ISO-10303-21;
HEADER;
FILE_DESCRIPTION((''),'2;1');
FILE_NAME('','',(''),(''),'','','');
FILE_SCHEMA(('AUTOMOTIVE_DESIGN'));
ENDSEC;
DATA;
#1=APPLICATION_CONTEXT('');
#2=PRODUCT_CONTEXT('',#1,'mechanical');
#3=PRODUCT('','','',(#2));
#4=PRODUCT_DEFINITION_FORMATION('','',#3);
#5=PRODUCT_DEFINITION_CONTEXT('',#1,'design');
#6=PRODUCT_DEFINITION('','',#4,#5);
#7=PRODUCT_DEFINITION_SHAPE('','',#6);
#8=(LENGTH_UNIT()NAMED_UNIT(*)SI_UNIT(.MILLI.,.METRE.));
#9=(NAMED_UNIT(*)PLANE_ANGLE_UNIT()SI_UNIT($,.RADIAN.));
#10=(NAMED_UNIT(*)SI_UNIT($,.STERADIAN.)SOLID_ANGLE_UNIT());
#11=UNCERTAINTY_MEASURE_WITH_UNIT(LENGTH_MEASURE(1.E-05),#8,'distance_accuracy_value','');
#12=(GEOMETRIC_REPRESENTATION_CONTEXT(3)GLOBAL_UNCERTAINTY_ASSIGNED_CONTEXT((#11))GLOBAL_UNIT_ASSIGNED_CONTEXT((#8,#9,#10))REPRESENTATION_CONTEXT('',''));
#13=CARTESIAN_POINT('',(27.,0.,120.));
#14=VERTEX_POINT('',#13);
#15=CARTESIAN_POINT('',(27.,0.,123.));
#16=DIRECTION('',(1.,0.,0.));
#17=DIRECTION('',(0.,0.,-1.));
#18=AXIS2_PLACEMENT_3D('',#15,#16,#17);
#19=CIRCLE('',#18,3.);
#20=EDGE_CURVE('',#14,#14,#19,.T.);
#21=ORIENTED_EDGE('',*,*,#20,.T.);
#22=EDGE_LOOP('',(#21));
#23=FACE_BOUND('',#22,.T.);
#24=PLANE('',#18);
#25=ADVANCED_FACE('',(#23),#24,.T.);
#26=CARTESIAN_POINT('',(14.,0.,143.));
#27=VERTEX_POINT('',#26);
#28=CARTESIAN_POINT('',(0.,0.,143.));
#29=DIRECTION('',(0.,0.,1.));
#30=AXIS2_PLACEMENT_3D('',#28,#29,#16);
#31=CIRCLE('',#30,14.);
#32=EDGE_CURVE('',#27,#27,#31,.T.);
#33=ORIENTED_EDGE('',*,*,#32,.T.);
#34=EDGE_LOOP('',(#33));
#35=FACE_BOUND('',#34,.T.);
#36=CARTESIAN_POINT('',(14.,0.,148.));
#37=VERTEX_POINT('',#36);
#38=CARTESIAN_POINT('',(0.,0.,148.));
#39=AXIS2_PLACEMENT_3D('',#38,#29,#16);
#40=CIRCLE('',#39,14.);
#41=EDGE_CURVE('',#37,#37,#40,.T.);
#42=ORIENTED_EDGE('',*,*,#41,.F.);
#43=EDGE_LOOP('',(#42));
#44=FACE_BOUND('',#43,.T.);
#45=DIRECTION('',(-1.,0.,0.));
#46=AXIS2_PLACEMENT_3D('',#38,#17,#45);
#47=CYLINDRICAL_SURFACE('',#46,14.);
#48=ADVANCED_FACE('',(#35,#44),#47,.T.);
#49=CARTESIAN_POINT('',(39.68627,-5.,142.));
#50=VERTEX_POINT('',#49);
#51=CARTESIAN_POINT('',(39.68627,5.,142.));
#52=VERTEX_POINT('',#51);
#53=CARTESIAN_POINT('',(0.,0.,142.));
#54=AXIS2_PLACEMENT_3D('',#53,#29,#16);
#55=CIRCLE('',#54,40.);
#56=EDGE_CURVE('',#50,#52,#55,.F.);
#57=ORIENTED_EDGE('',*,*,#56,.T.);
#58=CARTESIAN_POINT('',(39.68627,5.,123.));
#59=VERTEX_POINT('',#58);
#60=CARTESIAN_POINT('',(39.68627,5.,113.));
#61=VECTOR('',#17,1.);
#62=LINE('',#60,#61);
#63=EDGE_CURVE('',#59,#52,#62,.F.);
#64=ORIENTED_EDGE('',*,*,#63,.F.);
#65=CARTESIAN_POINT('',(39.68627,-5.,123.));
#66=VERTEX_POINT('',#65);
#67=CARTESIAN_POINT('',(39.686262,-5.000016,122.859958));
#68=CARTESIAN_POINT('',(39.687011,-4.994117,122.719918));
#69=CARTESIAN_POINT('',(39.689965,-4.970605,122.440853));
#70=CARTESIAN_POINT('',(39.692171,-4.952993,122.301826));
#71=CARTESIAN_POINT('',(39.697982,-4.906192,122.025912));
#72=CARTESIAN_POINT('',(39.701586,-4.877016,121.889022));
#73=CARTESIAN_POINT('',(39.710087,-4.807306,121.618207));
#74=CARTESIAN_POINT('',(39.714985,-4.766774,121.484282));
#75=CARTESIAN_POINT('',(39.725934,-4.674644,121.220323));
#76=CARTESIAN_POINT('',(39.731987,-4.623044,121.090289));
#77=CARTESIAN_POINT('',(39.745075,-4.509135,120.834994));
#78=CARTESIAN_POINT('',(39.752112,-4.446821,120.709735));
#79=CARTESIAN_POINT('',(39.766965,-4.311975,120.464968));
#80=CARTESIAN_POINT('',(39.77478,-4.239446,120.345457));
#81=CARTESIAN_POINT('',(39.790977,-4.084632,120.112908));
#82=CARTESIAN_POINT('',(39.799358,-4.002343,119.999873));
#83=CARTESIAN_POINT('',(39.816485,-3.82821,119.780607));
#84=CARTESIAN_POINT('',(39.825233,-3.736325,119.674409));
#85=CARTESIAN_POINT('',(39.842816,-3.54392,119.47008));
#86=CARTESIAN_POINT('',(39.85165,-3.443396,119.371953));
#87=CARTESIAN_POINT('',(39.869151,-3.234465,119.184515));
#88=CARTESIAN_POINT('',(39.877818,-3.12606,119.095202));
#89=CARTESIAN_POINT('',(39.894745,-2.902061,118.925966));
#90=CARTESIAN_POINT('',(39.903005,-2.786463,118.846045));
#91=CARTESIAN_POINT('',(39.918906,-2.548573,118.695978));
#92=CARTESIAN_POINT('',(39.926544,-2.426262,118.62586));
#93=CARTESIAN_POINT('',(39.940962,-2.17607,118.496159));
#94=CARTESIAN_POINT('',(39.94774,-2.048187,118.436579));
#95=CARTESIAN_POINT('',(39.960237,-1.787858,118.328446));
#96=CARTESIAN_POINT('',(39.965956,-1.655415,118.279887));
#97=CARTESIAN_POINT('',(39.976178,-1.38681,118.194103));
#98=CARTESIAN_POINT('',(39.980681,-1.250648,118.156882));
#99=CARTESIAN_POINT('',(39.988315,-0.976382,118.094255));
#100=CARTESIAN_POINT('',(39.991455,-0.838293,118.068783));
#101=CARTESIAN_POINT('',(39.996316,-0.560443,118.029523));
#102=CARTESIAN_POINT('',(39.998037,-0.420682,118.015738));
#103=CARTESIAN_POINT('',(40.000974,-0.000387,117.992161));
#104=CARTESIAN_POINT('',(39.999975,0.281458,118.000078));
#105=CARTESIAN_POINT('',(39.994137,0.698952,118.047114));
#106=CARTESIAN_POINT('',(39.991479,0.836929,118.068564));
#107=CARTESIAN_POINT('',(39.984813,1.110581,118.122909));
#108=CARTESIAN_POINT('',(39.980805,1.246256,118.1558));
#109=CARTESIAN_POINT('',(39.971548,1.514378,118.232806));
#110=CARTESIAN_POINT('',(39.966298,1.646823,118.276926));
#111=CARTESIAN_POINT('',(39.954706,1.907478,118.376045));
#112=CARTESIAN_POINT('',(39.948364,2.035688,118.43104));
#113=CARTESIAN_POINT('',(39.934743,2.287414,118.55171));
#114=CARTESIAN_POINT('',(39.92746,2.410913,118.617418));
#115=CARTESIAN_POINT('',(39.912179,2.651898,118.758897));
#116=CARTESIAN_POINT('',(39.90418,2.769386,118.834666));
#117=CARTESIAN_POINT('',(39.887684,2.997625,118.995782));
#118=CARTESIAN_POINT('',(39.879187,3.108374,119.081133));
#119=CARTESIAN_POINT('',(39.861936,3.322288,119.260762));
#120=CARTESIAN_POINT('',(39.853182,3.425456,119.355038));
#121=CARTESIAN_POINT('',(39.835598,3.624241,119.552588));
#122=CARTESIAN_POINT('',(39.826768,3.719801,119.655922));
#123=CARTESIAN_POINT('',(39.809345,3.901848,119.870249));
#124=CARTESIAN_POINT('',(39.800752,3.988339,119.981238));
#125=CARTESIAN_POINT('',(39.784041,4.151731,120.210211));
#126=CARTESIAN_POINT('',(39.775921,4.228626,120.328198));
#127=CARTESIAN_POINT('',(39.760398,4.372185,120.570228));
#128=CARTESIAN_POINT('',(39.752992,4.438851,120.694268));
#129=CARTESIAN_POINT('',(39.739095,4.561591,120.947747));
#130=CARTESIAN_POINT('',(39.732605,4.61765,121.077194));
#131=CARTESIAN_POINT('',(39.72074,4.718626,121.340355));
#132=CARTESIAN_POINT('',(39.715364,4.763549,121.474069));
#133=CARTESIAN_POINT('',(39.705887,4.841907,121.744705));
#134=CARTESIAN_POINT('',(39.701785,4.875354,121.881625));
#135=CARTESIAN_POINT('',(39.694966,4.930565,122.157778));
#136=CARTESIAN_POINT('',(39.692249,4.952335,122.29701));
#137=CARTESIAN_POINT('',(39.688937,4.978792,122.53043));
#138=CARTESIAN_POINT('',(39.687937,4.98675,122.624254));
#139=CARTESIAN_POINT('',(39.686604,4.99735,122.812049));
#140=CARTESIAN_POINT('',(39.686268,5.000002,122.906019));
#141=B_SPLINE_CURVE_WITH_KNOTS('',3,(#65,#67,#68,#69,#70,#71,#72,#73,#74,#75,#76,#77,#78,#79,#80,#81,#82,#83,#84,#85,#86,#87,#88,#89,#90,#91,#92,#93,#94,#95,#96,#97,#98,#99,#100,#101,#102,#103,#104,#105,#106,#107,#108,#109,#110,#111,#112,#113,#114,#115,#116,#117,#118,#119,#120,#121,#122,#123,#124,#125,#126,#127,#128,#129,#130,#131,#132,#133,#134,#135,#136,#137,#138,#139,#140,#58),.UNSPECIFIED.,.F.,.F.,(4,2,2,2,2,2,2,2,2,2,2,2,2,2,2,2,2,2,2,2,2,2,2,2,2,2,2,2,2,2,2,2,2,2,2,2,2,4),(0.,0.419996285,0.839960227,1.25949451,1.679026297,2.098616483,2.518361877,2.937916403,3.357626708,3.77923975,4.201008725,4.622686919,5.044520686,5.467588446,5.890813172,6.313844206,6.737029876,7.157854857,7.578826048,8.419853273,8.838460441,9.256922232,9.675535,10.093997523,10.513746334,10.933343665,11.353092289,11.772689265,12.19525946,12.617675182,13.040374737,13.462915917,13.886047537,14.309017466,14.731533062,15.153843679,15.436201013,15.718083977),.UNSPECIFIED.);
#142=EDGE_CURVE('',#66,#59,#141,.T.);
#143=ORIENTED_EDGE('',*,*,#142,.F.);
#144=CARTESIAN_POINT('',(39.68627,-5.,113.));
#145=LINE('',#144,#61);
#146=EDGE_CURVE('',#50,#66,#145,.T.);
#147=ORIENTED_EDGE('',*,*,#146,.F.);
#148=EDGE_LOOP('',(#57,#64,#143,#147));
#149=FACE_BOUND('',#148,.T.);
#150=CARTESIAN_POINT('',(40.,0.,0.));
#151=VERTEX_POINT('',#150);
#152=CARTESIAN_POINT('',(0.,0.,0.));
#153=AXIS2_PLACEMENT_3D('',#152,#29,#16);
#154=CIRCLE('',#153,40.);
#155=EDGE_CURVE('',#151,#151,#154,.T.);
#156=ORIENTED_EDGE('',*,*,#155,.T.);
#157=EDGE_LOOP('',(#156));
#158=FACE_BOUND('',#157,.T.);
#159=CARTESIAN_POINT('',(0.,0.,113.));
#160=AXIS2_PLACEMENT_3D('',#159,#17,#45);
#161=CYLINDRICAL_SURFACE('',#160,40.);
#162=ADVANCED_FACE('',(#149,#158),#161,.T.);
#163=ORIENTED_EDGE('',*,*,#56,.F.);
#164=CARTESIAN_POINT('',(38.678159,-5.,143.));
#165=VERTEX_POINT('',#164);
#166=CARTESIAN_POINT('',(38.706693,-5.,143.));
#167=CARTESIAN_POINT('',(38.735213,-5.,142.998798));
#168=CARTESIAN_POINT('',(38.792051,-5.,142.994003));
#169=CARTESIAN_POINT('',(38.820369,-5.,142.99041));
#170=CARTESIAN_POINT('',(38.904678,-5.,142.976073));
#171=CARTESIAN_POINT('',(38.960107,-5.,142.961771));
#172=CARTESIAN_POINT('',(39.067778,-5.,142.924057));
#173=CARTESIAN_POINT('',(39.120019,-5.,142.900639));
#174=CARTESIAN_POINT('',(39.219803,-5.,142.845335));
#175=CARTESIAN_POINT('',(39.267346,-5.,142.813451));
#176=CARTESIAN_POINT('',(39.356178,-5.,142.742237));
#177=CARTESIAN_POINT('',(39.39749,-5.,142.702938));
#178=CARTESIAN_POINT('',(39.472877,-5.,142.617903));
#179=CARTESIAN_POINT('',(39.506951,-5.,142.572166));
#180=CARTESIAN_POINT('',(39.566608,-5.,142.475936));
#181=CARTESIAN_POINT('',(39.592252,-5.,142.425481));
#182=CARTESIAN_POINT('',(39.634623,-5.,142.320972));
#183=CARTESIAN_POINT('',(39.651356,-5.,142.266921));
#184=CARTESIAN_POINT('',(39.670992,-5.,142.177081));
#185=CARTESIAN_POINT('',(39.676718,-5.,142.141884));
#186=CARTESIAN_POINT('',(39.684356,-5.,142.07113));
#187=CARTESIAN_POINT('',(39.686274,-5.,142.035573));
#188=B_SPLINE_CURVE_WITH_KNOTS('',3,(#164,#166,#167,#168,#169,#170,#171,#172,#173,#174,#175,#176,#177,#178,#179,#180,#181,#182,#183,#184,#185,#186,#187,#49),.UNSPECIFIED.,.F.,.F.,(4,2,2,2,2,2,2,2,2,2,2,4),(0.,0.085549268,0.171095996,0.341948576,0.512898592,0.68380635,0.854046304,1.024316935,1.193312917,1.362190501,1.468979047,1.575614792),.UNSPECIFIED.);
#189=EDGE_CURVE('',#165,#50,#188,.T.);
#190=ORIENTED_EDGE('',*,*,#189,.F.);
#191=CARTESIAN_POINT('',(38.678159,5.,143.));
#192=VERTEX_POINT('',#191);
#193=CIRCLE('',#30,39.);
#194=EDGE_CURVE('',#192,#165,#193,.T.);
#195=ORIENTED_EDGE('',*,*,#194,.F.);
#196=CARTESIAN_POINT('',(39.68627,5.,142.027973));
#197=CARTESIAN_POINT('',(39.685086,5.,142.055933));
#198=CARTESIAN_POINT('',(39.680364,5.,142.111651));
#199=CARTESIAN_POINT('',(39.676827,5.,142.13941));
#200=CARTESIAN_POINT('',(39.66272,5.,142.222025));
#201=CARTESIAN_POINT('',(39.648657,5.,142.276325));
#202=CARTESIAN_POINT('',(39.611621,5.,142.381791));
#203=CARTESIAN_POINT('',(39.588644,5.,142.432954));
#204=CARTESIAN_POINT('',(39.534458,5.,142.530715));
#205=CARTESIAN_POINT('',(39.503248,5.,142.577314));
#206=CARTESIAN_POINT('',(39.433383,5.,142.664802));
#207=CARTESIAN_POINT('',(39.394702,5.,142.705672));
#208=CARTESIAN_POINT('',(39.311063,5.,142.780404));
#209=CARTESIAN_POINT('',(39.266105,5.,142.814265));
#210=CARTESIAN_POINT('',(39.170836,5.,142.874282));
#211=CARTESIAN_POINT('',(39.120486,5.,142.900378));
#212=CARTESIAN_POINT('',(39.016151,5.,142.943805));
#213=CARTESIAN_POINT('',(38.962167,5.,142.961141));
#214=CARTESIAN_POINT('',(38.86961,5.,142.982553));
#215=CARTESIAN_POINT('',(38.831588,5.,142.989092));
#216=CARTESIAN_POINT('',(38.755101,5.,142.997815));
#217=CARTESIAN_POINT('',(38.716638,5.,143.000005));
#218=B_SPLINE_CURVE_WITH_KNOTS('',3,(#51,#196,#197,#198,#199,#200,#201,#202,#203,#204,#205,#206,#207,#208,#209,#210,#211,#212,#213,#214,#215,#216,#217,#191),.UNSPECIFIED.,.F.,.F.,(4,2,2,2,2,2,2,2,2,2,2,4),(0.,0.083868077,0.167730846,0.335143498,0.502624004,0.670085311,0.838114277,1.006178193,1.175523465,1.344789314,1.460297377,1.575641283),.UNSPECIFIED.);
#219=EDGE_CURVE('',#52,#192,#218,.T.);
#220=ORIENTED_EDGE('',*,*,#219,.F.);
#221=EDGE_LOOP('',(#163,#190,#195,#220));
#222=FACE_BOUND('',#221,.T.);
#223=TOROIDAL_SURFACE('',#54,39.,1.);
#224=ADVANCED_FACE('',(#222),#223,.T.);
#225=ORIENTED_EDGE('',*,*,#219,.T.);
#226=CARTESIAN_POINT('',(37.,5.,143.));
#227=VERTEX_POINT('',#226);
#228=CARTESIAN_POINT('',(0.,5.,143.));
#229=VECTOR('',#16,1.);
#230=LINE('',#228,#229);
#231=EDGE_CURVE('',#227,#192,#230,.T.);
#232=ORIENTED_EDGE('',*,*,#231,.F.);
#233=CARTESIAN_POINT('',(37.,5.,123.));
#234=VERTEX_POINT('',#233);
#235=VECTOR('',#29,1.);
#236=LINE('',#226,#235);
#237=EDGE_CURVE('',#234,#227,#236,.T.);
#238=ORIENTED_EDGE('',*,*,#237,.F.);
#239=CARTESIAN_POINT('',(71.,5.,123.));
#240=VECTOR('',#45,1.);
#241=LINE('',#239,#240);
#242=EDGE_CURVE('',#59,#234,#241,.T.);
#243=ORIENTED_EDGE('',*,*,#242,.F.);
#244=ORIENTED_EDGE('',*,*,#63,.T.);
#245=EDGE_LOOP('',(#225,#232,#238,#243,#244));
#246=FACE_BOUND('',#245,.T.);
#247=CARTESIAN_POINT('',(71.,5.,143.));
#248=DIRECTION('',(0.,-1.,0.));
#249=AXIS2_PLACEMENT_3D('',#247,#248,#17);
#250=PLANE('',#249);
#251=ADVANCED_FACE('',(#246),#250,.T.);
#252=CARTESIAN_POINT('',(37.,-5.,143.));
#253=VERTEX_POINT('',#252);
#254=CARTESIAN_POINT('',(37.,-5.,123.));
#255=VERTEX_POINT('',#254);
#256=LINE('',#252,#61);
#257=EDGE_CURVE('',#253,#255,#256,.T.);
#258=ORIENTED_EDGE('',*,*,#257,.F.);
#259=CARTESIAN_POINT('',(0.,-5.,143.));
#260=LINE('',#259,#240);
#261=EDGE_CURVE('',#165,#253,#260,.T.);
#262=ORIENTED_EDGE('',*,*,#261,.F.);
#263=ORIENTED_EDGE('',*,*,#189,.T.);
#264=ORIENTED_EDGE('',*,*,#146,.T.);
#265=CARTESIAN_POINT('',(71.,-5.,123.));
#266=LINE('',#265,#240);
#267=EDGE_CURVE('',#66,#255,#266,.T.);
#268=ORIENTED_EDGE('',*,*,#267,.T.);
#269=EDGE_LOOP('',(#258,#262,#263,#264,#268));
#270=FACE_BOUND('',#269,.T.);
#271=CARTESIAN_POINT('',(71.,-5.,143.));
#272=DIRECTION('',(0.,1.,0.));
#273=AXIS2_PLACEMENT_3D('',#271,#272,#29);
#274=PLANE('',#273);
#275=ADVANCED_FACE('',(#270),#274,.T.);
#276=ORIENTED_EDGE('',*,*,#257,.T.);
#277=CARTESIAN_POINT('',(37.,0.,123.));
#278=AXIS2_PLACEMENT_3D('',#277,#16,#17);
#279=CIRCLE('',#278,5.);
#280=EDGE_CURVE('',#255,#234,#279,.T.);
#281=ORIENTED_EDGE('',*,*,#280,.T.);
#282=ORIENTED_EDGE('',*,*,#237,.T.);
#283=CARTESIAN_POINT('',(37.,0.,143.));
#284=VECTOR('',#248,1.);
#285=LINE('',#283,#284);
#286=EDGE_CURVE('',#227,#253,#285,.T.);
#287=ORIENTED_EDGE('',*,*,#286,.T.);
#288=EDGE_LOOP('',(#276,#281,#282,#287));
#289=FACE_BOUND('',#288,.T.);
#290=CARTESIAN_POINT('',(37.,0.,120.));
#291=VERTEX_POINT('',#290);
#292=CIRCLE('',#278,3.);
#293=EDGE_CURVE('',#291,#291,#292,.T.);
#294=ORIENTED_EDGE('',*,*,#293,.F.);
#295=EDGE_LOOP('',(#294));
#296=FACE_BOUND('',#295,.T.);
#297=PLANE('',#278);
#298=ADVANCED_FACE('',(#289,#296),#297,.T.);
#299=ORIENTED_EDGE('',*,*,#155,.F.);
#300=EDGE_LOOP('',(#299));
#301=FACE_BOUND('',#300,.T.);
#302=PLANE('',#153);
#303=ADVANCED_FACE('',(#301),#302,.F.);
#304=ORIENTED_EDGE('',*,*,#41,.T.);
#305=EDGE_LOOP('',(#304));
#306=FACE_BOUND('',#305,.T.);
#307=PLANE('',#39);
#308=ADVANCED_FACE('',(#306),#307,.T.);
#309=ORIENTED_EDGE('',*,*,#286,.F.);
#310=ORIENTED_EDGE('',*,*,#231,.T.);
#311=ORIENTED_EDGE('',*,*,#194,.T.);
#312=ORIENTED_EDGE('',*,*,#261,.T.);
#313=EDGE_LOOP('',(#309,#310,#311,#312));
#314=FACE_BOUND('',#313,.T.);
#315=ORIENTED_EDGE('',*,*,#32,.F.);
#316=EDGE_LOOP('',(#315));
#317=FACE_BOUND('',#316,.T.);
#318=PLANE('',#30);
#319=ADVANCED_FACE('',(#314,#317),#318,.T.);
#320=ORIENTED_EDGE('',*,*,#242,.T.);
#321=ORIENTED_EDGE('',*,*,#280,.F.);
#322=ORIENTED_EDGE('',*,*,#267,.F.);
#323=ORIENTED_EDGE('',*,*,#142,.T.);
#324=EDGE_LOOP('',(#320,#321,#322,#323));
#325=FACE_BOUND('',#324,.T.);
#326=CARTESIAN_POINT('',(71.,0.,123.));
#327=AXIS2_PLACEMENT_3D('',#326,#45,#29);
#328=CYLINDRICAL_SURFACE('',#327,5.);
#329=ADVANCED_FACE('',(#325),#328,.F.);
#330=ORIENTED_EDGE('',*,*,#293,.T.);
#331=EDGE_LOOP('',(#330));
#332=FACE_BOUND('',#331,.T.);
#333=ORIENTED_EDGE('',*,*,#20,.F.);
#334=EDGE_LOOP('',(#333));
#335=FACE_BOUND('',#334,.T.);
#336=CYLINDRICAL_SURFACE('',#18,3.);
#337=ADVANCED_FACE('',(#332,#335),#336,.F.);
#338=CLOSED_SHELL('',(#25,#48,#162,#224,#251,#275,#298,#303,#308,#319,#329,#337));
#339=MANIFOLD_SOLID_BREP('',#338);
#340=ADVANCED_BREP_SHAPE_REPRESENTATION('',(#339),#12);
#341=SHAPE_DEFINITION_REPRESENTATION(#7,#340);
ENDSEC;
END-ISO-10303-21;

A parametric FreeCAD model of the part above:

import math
import FreeCAD as App
import Part
import Sketcher

V = App.Vector
Q = App.Units.Quantity


def edges_at(feature, points):
    """Names of the edges that pass closest to the given points."""
    edges = feature.Shape.Edges
    near = lambda p: min(range(len(edges)), key=lambda i: edges[i].distToShape(Part.Vertex(*p))[0])
    return sorted({f"Edge{near(p) + 1}" for p in points})

doc = App.newDocument("Part")
body = doc.addObject("PartDesign::Body", "Body")

# Sketch on XY plane
sketch1 = doc.addObject("Sketcher::SketchObject", "Sketch")
body.addObject(sketch1)
sketch1.AttachmentSupport = (doc.XY_Plane, [""])
sketch1.MapMode = "FlatFace"
sketch1.addGeometry(Part.Circle(V(0, 0, 0), V(0, 0, 1), 40), False)
sketch1.addConstraint([
    Sketcher.Constraint("Coincident", 0, 3, -1, 1),
    Sketcher.Constraint("Diameter", 0, Q("80 mm")),
])
pad1 = doc.addObject("PartDesign::Pad", "Pad")
body.addObject(pad1)
pad1.Profile = sketch1
pad1.Length = 113

# Sketch on XY plane
sketch2 = doc.addObject("Sketcher::SketchObject", "Sketch001")
body.addObject(sketch2)
sketch2.AttachmentSupport = (doc.XY_Plane, [""])
sketch2.MapMode = "FlatFace"
sketch2.AttachmentOffset = App.Placement(V(0, 0, 113), App.Rotation())
sketch2.addGeometry(Part.Circle(V(0, 0, 0), V(0, 0, 1), 40), False)
sketch2.addConstraint([
    Sketcher.Constraint("Coincident", 0, 3, -1, 1),
    Sketcher.Constraint("Diameter", 0, Q("80 mm")),
])
pad2 = doc.addObject("PartDesign::Pad", "Pad001")
body.addObject(pad2)
pad2.Profile = sketch2
pad2.Length = 30

# Sketch on XY plane
sketch3 = doc.addObject("Sketcher::SketchObject", "Sketch002")
body.addObject(sketch3)
sketch3.AttachmentSupport = (doc.XY_Plane, [""])
sketch3.MapMode = "FlatFace"
sketch3.AttachmentOffset = App.Placement(V(0, 0, 143), App.Rotation())
sketch3.addGeometry(Part.Circle(V(0, 0, 0), V(0, 0, 1), 14), False)
sketch3.addConstraint([
    Sketcher.Constraint("Coincident", 0, 3, -1, 1),
    Sketcher.Constraint("Diameter", 0, Q("28 mm")),
])
pad3 = doc.addObject("PartDesign::Pad", "Pad002")
body.addObject(pad3)
pad3.Profile = sketch3
pad3.Length = 5

# Sketch on YZ plane
sketch4 = doc.addObject("Sketcher::SketchObject", "Sketch003")
body.addObject(sketch4)
sketch4.AttachmentSupport = (doc.YZ_Plane, [""])
sketch4.MapMode = "FlatFace"
sketch4.AttachmentOffset = App.Placement(V(0, 0, 37), App.Rotation())
sketch4.addGeometry([
    Part.LineSegment(V(-5, 143, 0), V(-5, 123, 0)),
    Part.ArcOfCircle(Part.Circle(V(0, 123, 0), V(0, 0, 1), 5), math.radians(180), math.radians(360)),
    Part.LineSegment(V(5, 123, 0), V(5, 143, 0)),
    Part.LineSegment(V(5, 143, 0), V(-5, 143, 0)),
], False)
sketch4.addConstraint([
    Sketcher.Constraint("Tangent", 0, 2, 1, 1),
    Sketcher.Constraint("Tangent", 1, 2, 2, 1),
    Sketcher.Constraint("Coincident", 2, 2, 3, 1),
    Sketcher.Constraint("Coincident", 3, 2, 0, 1),
    Sketcher.Constraint("Vertical", 0),
    Sketcher.Constraint("Vertical", 2),
    Sketcher.Constraint("Horizontal", 3),
    Sketcher.Constraint("PointOnObject", 1, 3, -2),
    Sketcher.Constraint("Radius", 1, Q("5 mm")),
    Sketcher.Constraint("DistanceY", 0, 2, 0, 1, Q("20 mm")),
    Sketcher.Constraint("DistanceY", -1, 1, 1, 3, Q("123 mm")),
])
pocket1 = doc.addObject("PartDesign::Pocket", "Pocket")
body.addObject(pocket1)
pocket1.Profile = sketch4
pocket1.Length = 34
pocket1.Reversed = True

# Sketch on YZ plane
sketch5 = doc.addObject("Sketcher::SketchObject", "Sketch004")
body.addObject(sketch5)
sketch5.AttachmentSupport = (doc.YZ_Plane, [""])
sketch5.MapMode = "FlatFace"
sketch5.AttachmentOffset = App.Placement(V(0, 0, 37), App.Rotation())
sketch5.addGeometry(Part.Circle(V(0, 123, 0), V(0, 0, 1), 3), False)
sketch5.addConstraint([
    Sketcher.Constraint("PointOnObject", 0, 3, -2),
    Sketcher.Constraint("Diameter", 0, Q("6 mm")),
    Sketcher.Constraint("DistanceY", -1, 1, 0, 3, Q("123 mm")),
])
pocket2 = doc.addObject("PartDesign::Pocket", "Pocket001")
body.addObject(pocket2)
pocket2.Profile = sketch5
pocket2.Length = 10
doc.recompute()

fillet = doc.addObject("PartDesign::Fillet", "Fillet")
body.addObject(fillet)
fillet.Base = (pocket2, edges_at(pocket2, [(-40, 0, 143)]))
fillet.Radius = 1

doc.recompute()
